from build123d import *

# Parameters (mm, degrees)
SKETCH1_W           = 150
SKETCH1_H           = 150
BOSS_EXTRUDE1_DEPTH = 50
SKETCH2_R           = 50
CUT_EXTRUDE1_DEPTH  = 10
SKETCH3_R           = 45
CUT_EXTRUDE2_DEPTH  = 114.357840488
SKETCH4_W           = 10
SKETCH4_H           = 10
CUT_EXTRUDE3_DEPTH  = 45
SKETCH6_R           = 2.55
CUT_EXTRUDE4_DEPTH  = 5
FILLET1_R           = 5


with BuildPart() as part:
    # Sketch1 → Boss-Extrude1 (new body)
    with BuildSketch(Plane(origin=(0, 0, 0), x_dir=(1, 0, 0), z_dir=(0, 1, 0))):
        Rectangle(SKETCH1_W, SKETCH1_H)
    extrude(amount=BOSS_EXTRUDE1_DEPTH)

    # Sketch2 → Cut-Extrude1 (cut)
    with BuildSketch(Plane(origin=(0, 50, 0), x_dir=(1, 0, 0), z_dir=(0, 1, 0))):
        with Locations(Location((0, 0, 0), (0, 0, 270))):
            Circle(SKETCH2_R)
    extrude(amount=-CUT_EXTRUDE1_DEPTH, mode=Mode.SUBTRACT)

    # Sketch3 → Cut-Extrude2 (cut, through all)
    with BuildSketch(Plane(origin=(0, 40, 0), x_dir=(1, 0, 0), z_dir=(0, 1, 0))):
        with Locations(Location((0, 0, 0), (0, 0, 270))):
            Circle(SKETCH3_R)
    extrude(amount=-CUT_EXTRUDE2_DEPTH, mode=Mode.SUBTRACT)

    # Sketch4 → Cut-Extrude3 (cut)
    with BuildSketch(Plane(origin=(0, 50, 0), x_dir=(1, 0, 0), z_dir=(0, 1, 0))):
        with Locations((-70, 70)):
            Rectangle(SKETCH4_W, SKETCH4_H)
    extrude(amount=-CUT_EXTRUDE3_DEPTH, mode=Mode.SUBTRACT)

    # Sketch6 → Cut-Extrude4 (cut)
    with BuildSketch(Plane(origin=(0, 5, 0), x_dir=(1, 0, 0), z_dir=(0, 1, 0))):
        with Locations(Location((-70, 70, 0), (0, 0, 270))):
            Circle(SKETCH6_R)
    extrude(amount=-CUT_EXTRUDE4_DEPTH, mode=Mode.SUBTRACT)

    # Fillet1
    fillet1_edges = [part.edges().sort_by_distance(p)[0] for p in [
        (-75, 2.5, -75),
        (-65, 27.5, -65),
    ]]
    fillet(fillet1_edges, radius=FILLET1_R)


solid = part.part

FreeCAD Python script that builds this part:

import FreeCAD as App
import Part
import Sketcher


def edges_at(feature, points):
    """Names of the edges that pass closest to the given points."""
    edges = feature.Shape.Edges
    near = lambda p: min(range(len(edges)), key=lambda i: edges[i].distToShape(Part.Vertex(*p))[0])
    return sorted({f"Edge{near(p) + 1}" for p in points})


def add_polygon(sketch, points):
    """Adds a closed chain of lines whose ends are joined by coincident constraints."""
    first, n = sketch.GeometryCount, len(points)
    for a, b in zip(points, points[1:] + points[:1]):
        sketch.addGeometry(Part.LineSegment(App.Vector(*a, 0), App.Vector(*b, 0)), False)
    for i in range(n):
        sketch.addConstraint(Sketcher.Constraint("Coincident", first + i, 2, first + (i + 1) % n, 1))

doc = App.newDocument("Part")
body = doc.addObject("PartDesign::Body", "Body")

# Sketch on XZ plane
sketch1 = doc.addObject("Sketcher::SketchObject", "Sketch")
body.addObject(sketch1)
sketch1.AttachmentSupport = (doc.XZ_Plane, [""])
sketch1.MapMode = "FlatFace"
add_polygon(sketch1, [(-75, -75), (-75, 75), (75, 75), (75, -75)])  # lines 0-3
sketch1.addConstraint(Sketcher.Constraint("Vertical", 0))
sketch1.addConstraint(Sketcher.Constraint("Horizontal", 1))
sketch1.addConstraint(Sketcher.Constraint("Vertical", 2))
sketch1.addConstraint(Sketcher.Constraint("Horizontal", 3))
sketch1.addConstraint(Sketcher.Constraint("Symmetric", 0, 2, 2, 2, -1, 1))
sketch1.addConstraint(Sketcher.Constraint("Equal", 3, 0))
sketch1.addConstraint(Sketcher.Constraint("DistanceX", 1, 1, 1, 2, 150.0))
pad1 = doc.addObject("PartDesign::Pad", "Pad")
body.addObject(pad1)
pad1.Profile = sketch1
pad1.Length = 50
pad1.Reversed = True

# Sketch on XZ plane
sketch2 = doc.addObject("Sketcher::SketchObject", "Sketch001")
body.addObject(sketch2)
sketch2.AttachmentSupport = (doc.XZ_Plane, [""])
sketch2.MapMode = "FlatFace"
sketch2.AttachmentOffset = App.Placement(App.Vector(0, 0, -50), App.Rotation())
sketch2.addGeometry(Part.Circle(App.Vector(0, 0, 0), App.Vector(0, 0, 1), 50), False)
sketch2.addConstraint(Sketcher.Constraint("Coincident", 0, 3, -1, 1))
sketch2.addConstraint(Sketcher.Constraint("Diameter", 0, 100.0))
pocket1 = doc.addObject("PartDesign::Pocket", "Pocket")
body.addObject(pocket1)
pocket1.Profile = sketch2
pocket1.Length = 10
pocket1.Reversed = True

# Sketch on XZ plane
sketch3 = doc.addObject("Sketcher::SketchObject", "Sketch002")
body.addObject(sketch3)
sketch3.AttachmentSupport = (doc.XZ_Plane, [""])
sketch3.MapMode = "FlatFace"
sketch3.AttachmentOffset = App.Placement(App.Vector(0, 0, -40), App.Rotation())
sketch3.addGeometry(Part.Circle(App.Vector(0, 0, 0), App.Vector(0, 0, 1), 45), False)
sketch3.addConstraint(Sketcher.Constraint("Coincident", 0, 3, -1, 1))
sketch3.addConstraint(Sketcher.Constraint("Diameter", 0, 90.0))
pocket2 = doc.addObject("PartDesign::Pocket", "Pocket001")
body.addObject(pocket2)
pocket2.Profile = sketch3
pocket2.Type = "ThroughAll"
pocket2.Reversed = True

# Sketch on XZ plane
sketch4 = doc.addObject("Sketcher::SketchObject", "Sketch003")
body.addObject(sketch4)
sketch4.AttachmentSupport = (doc.XZ_Plane, [""])
sketch4.MapMode = "FlatFace"
sketch4.AttachmentOffset = App.Placement(App.Vector(0, 0, -50), App.Rotation())
add_polygon(sketch4, [(-75, -75), (-75, -65), (-65, -65), (-65, -75)])  # lines 0-3
sketch4.addConstraint(Sketcher.Constraint("Vertical", 0))
sketch4.addConstraint(Sketcher.Constraint("Horizontal", 1))
sketch4.addConstraint(Sketcher.Constraint("Vertical", 2))
sketch4.addConstraint(Sketcher.Constraint("Horizontal", 3))
sketch4.addConstraint(Sketcher.Constraint("Equal", 3, 0))
sketch4.addConstraint(Sketcher.Constraint("DistanceX", 1, 1, 1, 2, 10.0))
sketch4.addConstraint(Sketcher.Constraint("DistanceX", 0, 2, -1, 1, 75.0))
sketch4.addConstraint(Sketcher.Constraint("DistanceY", 0, 2, -1, 1, 65.0))
pocket3 = doc.addObject("PartDesign::Pocket", "Pocket002")
body.addObject(pocket3)
pocket3.Profile = sketch4
pocket3.Length = 45
pocket3.Reversed = True

# Sketch on XZ plane
sketch5 = doc.addObject("Sketcher::SketchObject", "Sketch004")
body.addObject(sketch5)
sketch5.AttachmentSupport = (doc.XZ_Plane, [""])
sketch5.MapMode = "FlatFace"
sketch5.AttachmentOffset = App.Placement(App.Vector(0, 0, -5), App.Rotation())
sketch5.addGeometry(Part.Circle(App.Vector(-70, -70, 0), App.Vector(0, 0, 1), 2.5), False)
sketch5.addConstraint(Sketcher.Constraint("Diameter", 0, 5.1))
sketch5.addConstraint(Sketcher.Constraint("DistanceX", 0, 3, -1, 1, 70.0))
sketch5.addConstraint(Sketcher.Constraint("DistanceY", 0, 3, -1, 1, 70.0))
pocket4 = doc.addObject("PartDesign::Pocket", "Pocket003")
body.addObject(pocket4)
pocket4.Profile = sketch5
pocket4.Length = 5
pocket4.Reversed = True
doc.recompute()

fillet = doc.addObject("PartDesign::Fillet", "Fillet")
body.addObject(fillet)
fillet.Base = (pocket4, edges_at(pocket4, [(-75, 2.5, -75), (-65, 27.5, -65)]))
fillet.Radius = 5

doc.recompute()
